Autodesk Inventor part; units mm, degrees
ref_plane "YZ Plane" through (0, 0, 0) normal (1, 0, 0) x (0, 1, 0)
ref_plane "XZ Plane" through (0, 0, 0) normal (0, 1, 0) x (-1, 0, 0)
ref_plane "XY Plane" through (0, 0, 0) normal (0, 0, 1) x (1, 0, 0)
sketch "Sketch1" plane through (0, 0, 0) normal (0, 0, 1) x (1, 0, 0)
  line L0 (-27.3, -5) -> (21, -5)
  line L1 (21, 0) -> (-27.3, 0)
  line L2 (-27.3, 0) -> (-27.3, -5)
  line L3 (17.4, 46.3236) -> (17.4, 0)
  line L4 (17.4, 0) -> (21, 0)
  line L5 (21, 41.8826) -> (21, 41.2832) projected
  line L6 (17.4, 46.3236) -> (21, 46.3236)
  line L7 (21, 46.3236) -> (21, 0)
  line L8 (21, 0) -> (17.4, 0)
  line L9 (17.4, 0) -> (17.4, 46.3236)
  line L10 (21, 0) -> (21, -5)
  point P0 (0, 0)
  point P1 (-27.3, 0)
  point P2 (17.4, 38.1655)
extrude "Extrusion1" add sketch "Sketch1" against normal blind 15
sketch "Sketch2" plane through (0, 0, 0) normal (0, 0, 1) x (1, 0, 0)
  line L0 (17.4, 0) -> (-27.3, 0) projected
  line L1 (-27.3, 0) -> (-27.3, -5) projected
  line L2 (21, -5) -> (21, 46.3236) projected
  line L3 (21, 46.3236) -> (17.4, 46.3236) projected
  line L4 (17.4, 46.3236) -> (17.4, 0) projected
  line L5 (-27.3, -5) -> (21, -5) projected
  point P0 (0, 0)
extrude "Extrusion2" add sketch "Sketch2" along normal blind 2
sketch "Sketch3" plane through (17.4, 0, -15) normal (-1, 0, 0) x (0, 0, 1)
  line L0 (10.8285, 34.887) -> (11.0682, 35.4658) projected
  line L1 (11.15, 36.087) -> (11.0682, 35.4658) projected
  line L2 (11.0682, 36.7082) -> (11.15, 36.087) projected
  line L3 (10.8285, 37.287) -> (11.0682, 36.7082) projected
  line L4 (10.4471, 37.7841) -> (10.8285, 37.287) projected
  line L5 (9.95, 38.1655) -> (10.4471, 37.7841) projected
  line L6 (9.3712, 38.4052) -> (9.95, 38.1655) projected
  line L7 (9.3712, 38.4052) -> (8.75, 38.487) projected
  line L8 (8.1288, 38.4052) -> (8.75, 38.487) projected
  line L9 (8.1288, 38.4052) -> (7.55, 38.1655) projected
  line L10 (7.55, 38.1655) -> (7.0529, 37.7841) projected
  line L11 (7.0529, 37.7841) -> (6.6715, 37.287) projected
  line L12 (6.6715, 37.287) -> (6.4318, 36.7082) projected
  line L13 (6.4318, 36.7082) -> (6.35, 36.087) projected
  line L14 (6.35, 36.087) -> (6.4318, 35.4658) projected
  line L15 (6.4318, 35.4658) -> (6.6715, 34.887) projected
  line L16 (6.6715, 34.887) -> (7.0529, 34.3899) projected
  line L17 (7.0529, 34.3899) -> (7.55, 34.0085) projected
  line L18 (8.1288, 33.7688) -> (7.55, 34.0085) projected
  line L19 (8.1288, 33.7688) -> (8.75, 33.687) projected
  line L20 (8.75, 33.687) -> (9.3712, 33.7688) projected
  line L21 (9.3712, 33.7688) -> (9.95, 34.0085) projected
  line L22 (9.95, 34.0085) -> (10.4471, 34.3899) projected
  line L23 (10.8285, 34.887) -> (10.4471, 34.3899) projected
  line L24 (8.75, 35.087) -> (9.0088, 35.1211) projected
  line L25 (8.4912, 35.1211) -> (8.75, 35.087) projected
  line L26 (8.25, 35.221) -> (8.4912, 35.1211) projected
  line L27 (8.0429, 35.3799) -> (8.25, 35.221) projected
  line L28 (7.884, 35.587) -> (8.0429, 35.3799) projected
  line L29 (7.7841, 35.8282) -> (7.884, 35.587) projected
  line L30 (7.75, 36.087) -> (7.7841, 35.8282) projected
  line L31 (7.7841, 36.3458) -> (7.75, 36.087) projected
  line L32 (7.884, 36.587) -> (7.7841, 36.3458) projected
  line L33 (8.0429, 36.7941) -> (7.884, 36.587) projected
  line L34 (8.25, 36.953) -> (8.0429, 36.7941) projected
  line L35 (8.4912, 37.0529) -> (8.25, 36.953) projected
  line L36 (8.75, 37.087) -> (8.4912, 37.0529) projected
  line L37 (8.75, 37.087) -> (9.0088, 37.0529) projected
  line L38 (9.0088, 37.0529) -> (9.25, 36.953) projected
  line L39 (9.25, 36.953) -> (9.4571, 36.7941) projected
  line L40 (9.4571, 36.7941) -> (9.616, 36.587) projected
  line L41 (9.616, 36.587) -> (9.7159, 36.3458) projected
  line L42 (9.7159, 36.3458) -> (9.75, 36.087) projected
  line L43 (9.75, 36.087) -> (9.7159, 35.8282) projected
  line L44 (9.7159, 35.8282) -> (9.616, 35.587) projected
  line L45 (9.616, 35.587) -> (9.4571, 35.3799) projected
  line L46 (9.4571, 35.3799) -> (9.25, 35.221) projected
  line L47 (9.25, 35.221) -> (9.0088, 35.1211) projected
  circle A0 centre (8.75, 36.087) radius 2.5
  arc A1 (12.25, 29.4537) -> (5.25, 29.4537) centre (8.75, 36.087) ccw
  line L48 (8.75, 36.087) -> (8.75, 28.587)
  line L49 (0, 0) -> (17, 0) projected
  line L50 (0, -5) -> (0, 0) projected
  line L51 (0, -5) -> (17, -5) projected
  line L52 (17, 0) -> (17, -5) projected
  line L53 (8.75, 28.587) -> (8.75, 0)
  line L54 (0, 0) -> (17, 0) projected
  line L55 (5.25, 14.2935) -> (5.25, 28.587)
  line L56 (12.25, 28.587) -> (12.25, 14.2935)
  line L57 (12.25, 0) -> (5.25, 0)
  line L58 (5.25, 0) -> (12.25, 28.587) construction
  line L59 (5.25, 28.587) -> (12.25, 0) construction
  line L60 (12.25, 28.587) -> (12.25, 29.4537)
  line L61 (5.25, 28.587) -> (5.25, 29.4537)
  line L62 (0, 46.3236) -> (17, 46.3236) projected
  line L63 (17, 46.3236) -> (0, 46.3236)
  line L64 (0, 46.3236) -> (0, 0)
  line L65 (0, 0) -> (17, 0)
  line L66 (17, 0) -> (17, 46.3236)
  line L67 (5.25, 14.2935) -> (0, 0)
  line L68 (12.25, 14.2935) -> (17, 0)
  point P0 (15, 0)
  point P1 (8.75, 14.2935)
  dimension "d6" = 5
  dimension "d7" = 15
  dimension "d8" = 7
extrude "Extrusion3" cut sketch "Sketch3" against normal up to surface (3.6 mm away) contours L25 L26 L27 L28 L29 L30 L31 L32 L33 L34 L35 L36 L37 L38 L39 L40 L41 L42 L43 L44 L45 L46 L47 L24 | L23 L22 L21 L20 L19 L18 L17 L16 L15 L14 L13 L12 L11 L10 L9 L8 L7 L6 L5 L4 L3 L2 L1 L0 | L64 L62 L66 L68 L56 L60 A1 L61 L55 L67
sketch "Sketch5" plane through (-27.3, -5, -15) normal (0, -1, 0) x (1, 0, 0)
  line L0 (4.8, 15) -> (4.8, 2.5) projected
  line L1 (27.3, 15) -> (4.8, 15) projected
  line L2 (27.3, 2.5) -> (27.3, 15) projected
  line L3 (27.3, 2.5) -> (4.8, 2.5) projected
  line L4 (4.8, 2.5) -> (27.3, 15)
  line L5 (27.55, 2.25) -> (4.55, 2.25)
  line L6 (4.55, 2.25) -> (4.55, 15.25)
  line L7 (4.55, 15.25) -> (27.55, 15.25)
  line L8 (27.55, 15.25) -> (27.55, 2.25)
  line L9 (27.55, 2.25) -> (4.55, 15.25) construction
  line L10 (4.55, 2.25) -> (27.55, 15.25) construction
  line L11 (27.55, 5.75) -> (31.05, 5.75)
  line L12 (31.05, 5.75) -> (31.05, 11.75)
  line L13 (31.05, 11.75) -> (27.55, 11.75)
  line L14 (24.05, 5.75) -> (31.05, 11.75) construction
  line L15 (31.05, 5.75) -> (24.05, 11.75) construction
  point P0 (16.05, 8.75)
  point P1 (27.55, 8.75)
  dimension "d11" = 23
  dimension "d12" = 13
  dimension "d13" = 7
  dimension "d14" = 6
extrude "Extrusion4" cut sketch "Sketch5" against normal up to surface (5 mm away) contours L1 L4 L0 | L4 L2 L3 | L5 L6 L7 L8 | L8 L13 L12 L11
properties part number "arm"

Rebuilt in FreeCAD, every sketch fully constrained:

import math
import FreeCAD as App
import Part
import Sketcher

V = App.Vector
Q = App.Units.Quantity

doc = App.newDocument("Part")
body = doc.addObject("PartDesign::Body", "Body")

sketch1 = body.newObject("Sketcher::SketchObject", "Sketch")
sketch1.AttachmentSupport = (doc.getObject("XY_Plane"), [""])
sketch1.MapMode = "FlatFace"
sketch1.addGeometry(Part.LineSegment(V(-27.3, 0, 0), V(-27.3, -5, 0)), False)
sketch1.addGeometry(Part.LineSegment(V(-27.3, -5, 0), V(21, -5, 0)), False)
sketch1.addGeometry(Part.LineSegment(V(21, -5, 0), V(21, 46.3, 0)), False)
sketch1.addGeometry(Part.LineSegment(V(21, 46.3, 0), V(17.4, 46.3, 0)), False)
sketch1.addGeometry(Part.LineSegment(V(17.4, 46.3, 0), V(17.4, 0, 0)), False)
sketch1.addGeometry(Part.LineSegment(V(17.4, 0, 0), V(-27.3, 0, 0)), False)
sketch1.addConstraint(Sketcher.Constraint("Coincident", 0, 2, 1, 1))
sketch1.addConstraint(Sketcher.Constraint("Coincident", 1, 2, 2, 1))
sketch1.addConstraint(Sketcher.Constraint("Coincident", 2, 2, 3, 1))
sketch1.addConstraint(Sketcher.Constraint("Coincident", 3, 2, 4, 1))
sketch1.addConstraint(Sketcher.Constraint("Coincident", 4, 2, 5, 1))
sketch1.addConstraint(Sketcher.Constraint("Coincident", 5, 2, 0, 1))
sketch1.addConstraint(Sketcher.Constraint("Vertical", 0))
sketch1.addConstraint(Sketcher.Constraint("Horizontal", 1))
sketch1.addConstraint(Sketcher.Constraint("Vertical", 2))
sketch1.addConstraint(Sketcher.Constraint("Horizontal", 3))
sketch1.addConstraint(Sketcher.Constraint("Vertical", 4))
sketch1.addConstraint(Sketcher.Constraint("Horizontal", 5))
sketch1.addConstraint(Sketcher.Constraint("PointOnObject", 4, 2, -1))
sketch1.addConstraint(Sketcher.Constraint("DistanceY", 0, 2, 0, 1, Q("5 mm")))
sketch1.addConstraint(Sketcher.Constraint("DistanceX", 1, 1, 1, 2, Q("48.3 mm")))
sketch1.addConstraint(Sketcher.Constraint("DistanceX", 3, 2, 3, 1, Q("3.6 mm")))
sketch1.addConstraint(Sketcher.Constraint("DistanceX", -1, 1, 1, 2, Q("21 mm")))
sketch1.addConstraint(Sketcher.Constraint("DistanceY", 2, 1, 2, 2, Q("51.3236 mm")))
pad1 = body.newObject("PartDesign::Pad", "Pad")
pad1.Profile = sketch1
pad1.Length = 15
pad1.Reversed = True

sketch2 = body.newObject("Sketcher::SketchObject", "Sketch001")
sketch2.AttachmentSupport = (doc.getObject("XY_Plane"), [""])
sketch2.MapMode = "FlatFace"
sketch2.addGeometry(Part.LineSegment(V(17.4, 46.3, 0), V(17.4, 0, 0)), False)
sketch2.addGeometry(Part.LineSegment(V(17.4, 0, 0), V(-27.3, 0, 0)), False)
sketch2.addGeometry(Part.LineSegment(V(-27.3, 0, 0), V(-27.3, -5, 0)), False)
sketch2.addGeometry(Part.LineSegment(V(-27.3, -5, 0), V(21, -5, 0)), False)
sketch2.addGeometry(Part.LineSegment(V(21, -5, 0), V(21, 46.3, 0)), False)
sketch2.addGeometry(Part.LineSegment(V(21, 46.3, 0), V(17.4, 46.3, 0)), False)
sketch2.addConstraint(Sketcher.Constraint("Coincident", 0, 2, 1, 1))
sketch2.addConstraint(Sketcher.Constraint("Coincident", 1, 2, 2, 1))
sketch2.addConstraint(Sketcher.Constraint("Coincident", 2, 2, 3, 1))
sketch2.addConstraint(Sketcher.Constraint("Coincident", 3, 2, 4, 1))
sketch2.addConstraint(Sketcher.Constraint("Coincident", 4, 2, 5, 1))
sketch2.addConstraint(Sketcher.Constraint("Coincident", 5, 2, 0, 1))
sketch2.addConstraint(Sketcher.Constraint("Vertical", 0))
sketch2.addConstraint(Sketcher.Constraint("Horizontal", 1))
sketch2.addConstraint(Sketcher.Constraint("Vertical", 2))
sketch2.addConstraint(Sketcher.Constraint("Horizontal", 3))
sketch2.addConstraint(Sketcher.Constraint("Vertical", 4))
sketch2.addConstraint(Sketcher.Constraint("Horizontal", 5))
sketch2.addConstraint(Sketcher.Constraint("PointOnObject", 0, 2, -1))
sketch2.addConstraint(Sketcher.Constraint("DistanceY", 2, 2, 2, 1, Q("5 mm")))
sketch2.addConstraint(Sketcher.Constraint("DistanceX", 1, 2, 1, 1, Q("44.7 mm")))
sketch2.addConstraint(Sketcher.Constraint("DistanceX", 3, 1, 3, 2, Q("48.3 mm")))
sketch2.addConstraint(Sketcher.Constraint("DistanceX", -1, 1, 3, 2, Q("21 mm")))
sketch2.addConstraint(Sketcher.Constraint("DistanceY", 0, 2, 0, 1, Q("46.3236 mm")))
pad2 = body.newObject("PartDesign::Pad", "Pad001")
pad2.Profile = sketch2
pad2.Length = 2

sketch3 = body.newObject("Sketcher::SketchObject", "Sketch002")
sketch3.AttachmentSupport = (doc.getObject("YZ_Plane"), [""])
sketch3.MapMode = "FlatFace"
sketch3.AttachmentOffset = App.Placement(V(0, 0, 17.4), App.Rotation())
sketch3.addGeometry(Part.LineSegment(V(34.3899, -4.5529, 0), V(34.887, -4.1715, 0)), False)
sketch3.addGeometry(Part.LineSegment(V(34.887, -4.1715, 0), V(35.4658, -3.9318, 0)), False)
sketch3.addGeometry(Part.LineSegment(V(35.4658, -3.9318, 0), V(36.087, -3.85, 0)), False)
sketch3.addGeometry(Part.LineSegment(V(36.087, -3.85, 0), V(36.7082, -3.9318, 0)), False)
sketch3.addGeometry(Part.LineSegment(V(36.7082, -3.9318, 0), V(37.287, -4.1715, 0)), False)
sketch3.addGeometry(Part.LineSegment(V(37.287, -4.1715, 0), V(37.7841, -4.5529, 0)), False)
sketch3.addGeometry(Part.LineSegment(V(37.7841, -4.5529, 0), V(38.1655, -5.05, 0)), False)
sketch3.addGeometry(Part.LineSegment(V(38.1655, -5.05, 0), V(38.4052, -5.6288, 0)), False)
sketch3.addGeometry(Part.LineSegment(V(38.4052, -5.6288, 0), V(38.487, -6.25, 0)), False)
sketch3.addGeometry(Part.LineSegment(V(38.487, -6.25, 0), V(38.4052, -6.8712, 0)), False)
sketch3.addGeometry(Part.LineSegment(V(38.4052, -6.8712, 0), V(38.1655, -7.45, 0)), False)
sketch3.addGeometry(Part.LineSegment(V(38.1655, -7.45, 0), V(37.7841, -7.9471, 0)), False)
sketch3.addGeometry(Part.LineSegment(V(37.7841, -7.9471, 0), V(37.287, -8.3285, 0)), False)
sketch3.addGeometry(Part.LineSegment(V(37.287, -8.3285, 0), V(36.7082, -8.5682, 0)), False)
sketch3.addGeometry(Part.LineSegment(V(36.7082, -8.5682, 0), V(36.087, -8.65, 0)), False)
sketch3.addGeometry(Part.LineSegment(V(36.087, -8.65, 0), V(35.4658, -8.5682, 0)), False)
sketch3.addGeometry(Part.LineSegment(V(35.4658, -8.5682, 0), V(34.887, -8.3285, 0)), False)
sketch3.addGeometry(Part.LineSegment(V(34.887, -8.3285, 0), V(34.3899, -7.9471, 0)), False)
sketch3.addGeometry(Part.LineSegment(V(34.3899, -7.9471, 0), V(34.0085, -7.45, 0)), False)
sketch3.addGeometry(Part.LineSegment(V(34.0085, -7.45, 0), V(33.7688, -6.8712, 0)), False)
sketch3.addGeometry(Part.LineSegment(V(33.7688, -6.8712, 0), V(33.687, -6.25, 0)), False)
sketch3.addGeometry(Part.LineSegment(V(33.687, -6.25, 0), V(33.7688, -5.6288, 0)), False)
sketch3.addGeometry(Part.LineSegment(V(33.7688, -5.6288, 0), V(34.0085, -5.05, 0)), False)
sketch3.addGeometry(Part.LineSegment(V(34.0085, -5.05, 0), V(34.3899, -4.5529, 0)), False)
sketch3.addGeometry(Part.LineSegment(V(46.3236, -15, 0), V(0, -15, 0)), False)
sketch3.addGeometry(Part.LineSegment(V(0, -15, 0), V(14.2935, -9.75, 0)), False)
sketch3.addGeometry(Part.LineSegment(V(14.2935, -9.75, 0), V(29.4537, -9.75, 0)), False)
sketch3.addGeometry(Part.ArcOfCircle(Part.Circle(V(36.087, -6.25, 0), V(0, 0, 1), 7.500045), math.radians(-152.18204), math.radians(152.18204)), False)
sketch3.addGeometry(Part.LineSegment(V(29.4537, -2.75, 0), V(14.2935, -2.75, 0)), False)
sketch3.addGeometry(Part.LineSegment(V(14.2935, -2.75, 0), V(0, 2, 0)), False)
sketch3.addGeometry(Part.LineSegment(V(0, 2, 0), V(46.3236, 2, 0)), False)
sketch3.addGeometry(Part.LineSegment(V(46.3236, 2, 0), V(46.3236, -15, 0)), False)
sketch3.addConstraint(Sketcher.Constraint("Coincident", 0, 2, 1, 1))
sketch3.addConstraint(Sketcher.Constraint("Coincident", 1, 2, 2, 1))
sketch3.addConstraint(Sketcher.Constraint("Coincident", 2, 2, 3, 1))
sketch3.addConstraint(Sketcher.Constraint("Coincident", 3, 2, 4, 1))
sketch3.addConstraint(Sketcher.Constraint("Coincident", 4, 2, 5, 1))
sketch3.addConstraint(Sketcher.Constraint("Coincident", 5, 2, 6, 1))
sketch3.addConstraint(Sketcher.Constraint("Coincident", 6, 2, 7, 1))
sketch3.addConstraint(Sketcher.Constraint("Coincident", 7, 2, 8, 1))
sketch3.addConstraint(Sketcher.Constraint("Coincident", 8, 2, 9, 1))
sketch3.addConstraint(Sketcher.Constraint("Coincident", 9, 2, 10, 1))
sketch3.addConstraint(Sketcher.Constraint("Coincident", 10, 2, 11, 1))
sketch3.addConstraint(Sketcher.Constraint("Coincident", 11, 2, 12, 1))
sketch3.addConstraint(Sketcher.Constraint("Coincident", 12, 2, 13, 1))
sketch3.addConstraint(Sketcher.Constraint("Coincident", 13, 2, 14, 1))
sketch3.addConstraint(Sketcher.Constraint("Coincident", 14, 2, 15, 1))
sketch3.addConstraint(Sketcher.Constraint("Coincident", 15, 2, 16, 1))
sketch3.addConstraint(Sketcher.Constraint("Coincident", 16, 2, 17, 1))
sketch3.addConstraint(Sketcher.Constraint("Coincident", 17, 2, 18, 1))
sketch3.addConstraint(Sketcher.Constraint("Coincident", 18, 2, 19, 1))
sketch3.addConstraint(Sketcher.Constraint("Coincident", 19, 2, 20, 1))
sketch3.addConstraint(Sketcher.Constraint("Coincident", 20, 2, 21, 1))
sketch3.addConstraint(Sketcher.Constraint("Coincident", 21, 2, 22, 1))
sketch3.addConstraint(Sketcher.Constraint("Coincident", 22, 2, 23, 1))
sketch3.addConstraint(Sketcher.Constraint("Coincident", 23, 2, 0, 1))
sketch3.addConstraint(Sketcher.Constraint("Coincident", 24, 2, 25, 1))
sketch3.addConstraint(Sketcher.Constraint("Coincident", 25, 2, 26, 1))
sketch3.addConstraint(Sketcher.Constraint("Coincident", 26, 2, 27, 1))
sketch3.addConstraint(Sketcher.Constraint("Coincident", 27, 2, 28, 1))
sketch3.addConstraint(Sketcher.Constraint("Coincident", 28, 2, 29, 1))
sketch3.addConstraint(Sketcher.Constraint("Coincident", 29, 2, 30, 1))
sketch3.addConstraint(Sketcher.Constraint("Coincident", 30, 2, 31, 1))
sketch3.addConstraint(Sketcher.Constraint("Coincident", 31, 2, 24, 1))
sketch3.addConstraint(Sketcher.Constraint("Horizontal", 24))
sketch3.addConstraint(Sketcher.Constraint("Horizontal", 26))
sketch3.addConstraint(Sketcher.Constraint("Horizontal", 28))
sketch3.addConstraint(Sketcher.Constraint("Horizontal", 30))
sketch3.addConstraint(Sketcher.Constraint("Vertical", 31))
sketch3.addConstraint(Sketcher.Constraint("PointOnObject", 24, 2, -2))
sketch3.addConstraint(Sketcher.Constraint("PointOnObject", 29, 2, -2))
sketch3.addConstraint(Sketcher.Constraint("Perpendicular", 0, 6))
sketch3.addConstraint(Sketcher.Constraint("Perpendicular", 1, 7))
sketch3.addConstraint(Sketcher.Constraint("Perpendicular", 2, 8))
sketch3.addConstraint(Sketcher.Constraint("Perpendicular", 3, 9))
sketch3.addConstraint(Sketcher.Constraint("Perpendicular", 4, 10))
sketch3.addConstraint(Sketcher.Constraint("Perpendicular", 5, 11))
sketch3.addConstraint(Sketcher.Constraint("Perpendicular", 6, 12))
sketch3.addConstraint(Sketcher.Constraint("Perpendicular", 7, 13))
sketch3.addConstraint(Sketcher.Constraint("Perpendicular", 8, 14))
sketch3.addConstraint(Sketcher.Constraint("Perpendicular", 9, 15))
sketch3.addConstraint(Sketcher.Constraint("Perpendicular", 10, 16))
sketch3.addConstraint(Sketcher.Constraint("Perpendicular", 11, 17))
sketch3.addConstraint(Sketcher.Constraint("Perpendicular", 12, 18))
sketch3.addConstraint(Sketcher.Constraint("Perpendicular", 13, 19))
sketch3.addConstraint(Sketcher.Constraint("Perpendicular", 14, 20))
sketch3.addConstraint(Sketcher.Constraint("Perpendicular", 15, 21))
sketch3.addConstraint(Sketcher.Constraint("Perpendicular", 16, 22))
sketch3.addConstraint(Sketcher.Constraint("Perpendicular", 17, 23))
sketch3.addConstraint(Sketcher.Constraint("Horizontal", 1, 2, 3, 2))
sketch3.addConstraint(Sketcher.Constraint("Horizontal", 0, 2, 4, 2))
sketch3.addConstraint(Sketcher.Constraint("Horizontal", 27, 3, 8, 2))
sketch3.addConstraint(Sketcher.Constraint("Horizontal", 13, 2, 15, 2))
sketch3.addConstraint(Sketcher.Constraint("Horizontal", 12, 2, 16, 2))
sketch3.addConstraint(Sketcher.Constraint("Horizontal", 11, 2, 17, 2))
sketch3.addConstraint(Sketcher.Constraint("Horizontal", 10, 2, 18, 2))
sketch3.addConstraint(Sketcher.Constraint("Horizontal", 9, 2, 19, 2))
sketch3.addConstraint(Sketcher.Constraint("Horizontal", 8, 2, 20, 2))
sketch3.addConstraint(Sketcher.Constraint("Horizontal", 7, 2, 21, 2))
sketch3.addConstraint(Sketcher.Constraint("Horizontal", 6, 2, 22, 2))
sketch3.addConstraint(Sketcher.Constraint("Horizontal", 5, 2, 23, 2))
sketch3.addConstraint(Sketcher.Constraint("Vertical", 27, 3, 2, 2))
sketch3.addConstraint(Sketcher.Constraint("Vertical", 7, 2, 9, 2))
sketch3.addConstraint(Sketcher.Constraint("Vertical", 6, 2, 10, 2))
sketch3.addConstraint(Sketcher.Constraint("Vertical", 5, 2, 11, 2))
sketch3.addConstraint(Sketcher.Constraint("Vertical", 4, 2, 12, 2))
sketch3.addConstraint(Sketcher.Constraint("Vertical", 3, 2, 13, 2))
sketch3.addConstraint(Sketcher.Constraint("Vertical", 2, 2, 14, 2))
sketch3.addConstraint(Sketcher.Constraint("Vertical", 1, 2, 15, 2))
sketch3.addConstraint(Sketcher.Constraint("Vertical", 0, 2, 16, 2))
sketch3.addConstraint(Sketcher.Constraint("Vertical", 26, 2, 27, 2))
sketch3.addConstraint(Sketcher.Constraint("Vertical", 25, 2, 28, 2))
sketch3.addConstraint(Sketcher.Constraint("Equal", 0, 1))
sketch3.addConstraint(Sketcher.Constraint("Equal", 1, 2))
sketch3.addConstraint(Sketcher.Constraint("Equal", 5, 6))
sketch3.addConstraint(Sketcher.Constraint("Equal", 6, 7))
sketch3.addConstraint(Sketcher.Constraint("Equal", 7, 8))
sketch3.addConstraint(Sketcher.Constraint("Radius", 27, Q("7.5 mm")))
sketch3.addConstraint(Sketcher.Constraint("DistanceY", 24, 2, -1, 1, Q("15 mm")))
sketch3.addConstraint(Sketcher.Constraint("DistanceY", 25, 2, 28, 2, Q("7 mm")))
sketch3.addConstraint(Sketcher.Constraint("DistanceY", 31, 2, 31, 1, Q("17 mm")))
sketch3.addConstraint(Sketcher.Constraint("DistanceX", 0, 2, 27, 3, Q("1.2 mm")))
sketch3.addConstraint(Sketcher.Constraint("DistanceY", 27, 3, 2, 2, Q("2.4 mm")))
sketch3.addConstraint(Sketcher.Constraint("DistanceY", 27, 3, -1, 1, Q("6.25 mm")))
sketch3.addConstraint(Sketcher.Constraint("DistanceX", -1, 1, 17, 2, Q("34.39 mm")))
sketch3.addConstraint(Sketcher.Constraint("Distance", 29, Q("15.062 mm")))
sketch3.addConstraint(Sketcher.Constraint("DistanceX", 24, 2, 24, 1, Q("46.3236 mm")))
sketch3.addConstraint(Sketcher.Constraint("DistanceX", 26, 1, 26, 2, Q("15.1602 mm")))
sketch3.addConstraint(Sketcher.Constraint("DistanceX", 3, 2, 5, 2, Q("1.076 mm")))
pocket1 = body.newObject("PartDesign::Pocket", "Pocket")
pocket1.Profile = sketch3
pocket1.Length = 3.6
pocket1.Reversed = True

sketch4 = body.newObject("Sketcher::SketchObject", "Sketch003")
sketch4.AttachmentSupport = (doc.getObject("XZ_Plane"), [""])
sketch4.MapMode = "FlatFace"
sketch4.AttachmentOffset = App.Placement(V(0, 0, 5), App.Rotation())
sketch4.addGeometry(Part.LineSegment(V(-22.8, -12.8, 0), V(0.2, -12.8, 0)), False)
sketch4.addGeometry(Part.LineSegment(V(0.2, -12.8, 0), V(0.2, -9.2, 0)), False)
sketch4.addGeometry(Part.LineSegment(V(0.2, -9.2, 0), V(3.8, -9.2, 0)), False)
sketch4.addGeometry(Part.LineSegment(V(3.8, -9.2, 0), V(3.8, -3.2, 0)), False)
sketch4.addGeometry(Part.LineSegment(V(3.8, -3.2, 0), V(0.2, -3.2, 0)), False)
sketch4.addGeometry(Part.LineSegment(V(0.2, -3.2, 0), V(0.2, 0.2, 0)), False)
sketch4.addGeometry(Part.LineSegment(V(0.2, 0.2, 0), V(-22.8, 0.2, 0)), False)
sketch4.addGeometry(Part.LineSegment(V(-22.8, 0.2, 0), V(-22.8, -12.8, 0)), False)
sketch4.addConstraint(Sketcher.Constraint("Coincident", 0, 2, 1, 1))
sketch4.addConstraint(Sketcher.Constraint("Coincident", 1, 2, 2, 1))
sketch4.addConstraint(Sketcher.Constraint("Coincident", 2, 2, 3, 1))
sketch4.addConstraint(Sketcher.Constraint("Coincident", 3, 2, 4, 1))
sketch4.addConstraint(Sketcher.Constraint("Coincident", 4, 2, 5, 1))
sketch4.addConstraint(Sketcher.Constraint("Coincident", 5, 2, 6, 1))
sketch4.addConstraint(Sketcher.Constraint("Coincident", 6, 2, 7, 1))
sketch4.addConstraint(Sketcher.Constraint("Coincident", 7, 2, 0, 1))
sketch4.addConstraint(Sketcher.Constraint("Horizontal", 0))
sketch4.addConstraint(Sketcher.Constraint("Vertical", 1))
sketch4.addConstraint(Sketcher.Constraint("Horizontal", 2))
sketch4.addConstraint(Sketcher.Constraint("Vertical", 3))
sketch4.addConstraint(Sketcher.Constraint("Horizontal", 4))
sketch4.addConstraint(Sketcher.Constraint("Vertical", 5))
sketch4.addConstraint(Sketcher.Constraint("Horizontal", 6))
sketch4.addConstraint(Sketcher.Constraint("Vertical", 7))
sketch4.addConstraint(Sketcher.Constraint("Vertical", 1, 2, 4, 2))
sketch4.addConstraint(Sketcher.Constraint("Equal", 4, 1))
sketch4.addConstraint(Sketcher.Constraint("Equal", 1, 5))
sketch4.addConstraint(Sketcher.Constraint("DistanceX", 0, 1, 0, 2, Q("23 mm")))
sketch4.addConstraint(Sketcher.Constraint("DistanceY", 3, 1, 3, 2, Q("6 mm")))
sketch4.addConstraint(Sketcher.Constraint("DistanceY", 7, 2, 7, 1, Q("13 mm")))
sketch4.addConstraint(Sketcher.Constraint("DistanceX", -1, 1, 0, 2, Q("0.25 mm")))
sketch4.addConstraint(Sketcher.Constraint("DistanceY", 0, 2, -1, 1, Q("12.75 mm")))
pocket2 = body.newObject("PartDesign::Pocket", "Pocket001")
pocket2.Profile = sketch4
pocket2.Length = 5

doc.recompute()
